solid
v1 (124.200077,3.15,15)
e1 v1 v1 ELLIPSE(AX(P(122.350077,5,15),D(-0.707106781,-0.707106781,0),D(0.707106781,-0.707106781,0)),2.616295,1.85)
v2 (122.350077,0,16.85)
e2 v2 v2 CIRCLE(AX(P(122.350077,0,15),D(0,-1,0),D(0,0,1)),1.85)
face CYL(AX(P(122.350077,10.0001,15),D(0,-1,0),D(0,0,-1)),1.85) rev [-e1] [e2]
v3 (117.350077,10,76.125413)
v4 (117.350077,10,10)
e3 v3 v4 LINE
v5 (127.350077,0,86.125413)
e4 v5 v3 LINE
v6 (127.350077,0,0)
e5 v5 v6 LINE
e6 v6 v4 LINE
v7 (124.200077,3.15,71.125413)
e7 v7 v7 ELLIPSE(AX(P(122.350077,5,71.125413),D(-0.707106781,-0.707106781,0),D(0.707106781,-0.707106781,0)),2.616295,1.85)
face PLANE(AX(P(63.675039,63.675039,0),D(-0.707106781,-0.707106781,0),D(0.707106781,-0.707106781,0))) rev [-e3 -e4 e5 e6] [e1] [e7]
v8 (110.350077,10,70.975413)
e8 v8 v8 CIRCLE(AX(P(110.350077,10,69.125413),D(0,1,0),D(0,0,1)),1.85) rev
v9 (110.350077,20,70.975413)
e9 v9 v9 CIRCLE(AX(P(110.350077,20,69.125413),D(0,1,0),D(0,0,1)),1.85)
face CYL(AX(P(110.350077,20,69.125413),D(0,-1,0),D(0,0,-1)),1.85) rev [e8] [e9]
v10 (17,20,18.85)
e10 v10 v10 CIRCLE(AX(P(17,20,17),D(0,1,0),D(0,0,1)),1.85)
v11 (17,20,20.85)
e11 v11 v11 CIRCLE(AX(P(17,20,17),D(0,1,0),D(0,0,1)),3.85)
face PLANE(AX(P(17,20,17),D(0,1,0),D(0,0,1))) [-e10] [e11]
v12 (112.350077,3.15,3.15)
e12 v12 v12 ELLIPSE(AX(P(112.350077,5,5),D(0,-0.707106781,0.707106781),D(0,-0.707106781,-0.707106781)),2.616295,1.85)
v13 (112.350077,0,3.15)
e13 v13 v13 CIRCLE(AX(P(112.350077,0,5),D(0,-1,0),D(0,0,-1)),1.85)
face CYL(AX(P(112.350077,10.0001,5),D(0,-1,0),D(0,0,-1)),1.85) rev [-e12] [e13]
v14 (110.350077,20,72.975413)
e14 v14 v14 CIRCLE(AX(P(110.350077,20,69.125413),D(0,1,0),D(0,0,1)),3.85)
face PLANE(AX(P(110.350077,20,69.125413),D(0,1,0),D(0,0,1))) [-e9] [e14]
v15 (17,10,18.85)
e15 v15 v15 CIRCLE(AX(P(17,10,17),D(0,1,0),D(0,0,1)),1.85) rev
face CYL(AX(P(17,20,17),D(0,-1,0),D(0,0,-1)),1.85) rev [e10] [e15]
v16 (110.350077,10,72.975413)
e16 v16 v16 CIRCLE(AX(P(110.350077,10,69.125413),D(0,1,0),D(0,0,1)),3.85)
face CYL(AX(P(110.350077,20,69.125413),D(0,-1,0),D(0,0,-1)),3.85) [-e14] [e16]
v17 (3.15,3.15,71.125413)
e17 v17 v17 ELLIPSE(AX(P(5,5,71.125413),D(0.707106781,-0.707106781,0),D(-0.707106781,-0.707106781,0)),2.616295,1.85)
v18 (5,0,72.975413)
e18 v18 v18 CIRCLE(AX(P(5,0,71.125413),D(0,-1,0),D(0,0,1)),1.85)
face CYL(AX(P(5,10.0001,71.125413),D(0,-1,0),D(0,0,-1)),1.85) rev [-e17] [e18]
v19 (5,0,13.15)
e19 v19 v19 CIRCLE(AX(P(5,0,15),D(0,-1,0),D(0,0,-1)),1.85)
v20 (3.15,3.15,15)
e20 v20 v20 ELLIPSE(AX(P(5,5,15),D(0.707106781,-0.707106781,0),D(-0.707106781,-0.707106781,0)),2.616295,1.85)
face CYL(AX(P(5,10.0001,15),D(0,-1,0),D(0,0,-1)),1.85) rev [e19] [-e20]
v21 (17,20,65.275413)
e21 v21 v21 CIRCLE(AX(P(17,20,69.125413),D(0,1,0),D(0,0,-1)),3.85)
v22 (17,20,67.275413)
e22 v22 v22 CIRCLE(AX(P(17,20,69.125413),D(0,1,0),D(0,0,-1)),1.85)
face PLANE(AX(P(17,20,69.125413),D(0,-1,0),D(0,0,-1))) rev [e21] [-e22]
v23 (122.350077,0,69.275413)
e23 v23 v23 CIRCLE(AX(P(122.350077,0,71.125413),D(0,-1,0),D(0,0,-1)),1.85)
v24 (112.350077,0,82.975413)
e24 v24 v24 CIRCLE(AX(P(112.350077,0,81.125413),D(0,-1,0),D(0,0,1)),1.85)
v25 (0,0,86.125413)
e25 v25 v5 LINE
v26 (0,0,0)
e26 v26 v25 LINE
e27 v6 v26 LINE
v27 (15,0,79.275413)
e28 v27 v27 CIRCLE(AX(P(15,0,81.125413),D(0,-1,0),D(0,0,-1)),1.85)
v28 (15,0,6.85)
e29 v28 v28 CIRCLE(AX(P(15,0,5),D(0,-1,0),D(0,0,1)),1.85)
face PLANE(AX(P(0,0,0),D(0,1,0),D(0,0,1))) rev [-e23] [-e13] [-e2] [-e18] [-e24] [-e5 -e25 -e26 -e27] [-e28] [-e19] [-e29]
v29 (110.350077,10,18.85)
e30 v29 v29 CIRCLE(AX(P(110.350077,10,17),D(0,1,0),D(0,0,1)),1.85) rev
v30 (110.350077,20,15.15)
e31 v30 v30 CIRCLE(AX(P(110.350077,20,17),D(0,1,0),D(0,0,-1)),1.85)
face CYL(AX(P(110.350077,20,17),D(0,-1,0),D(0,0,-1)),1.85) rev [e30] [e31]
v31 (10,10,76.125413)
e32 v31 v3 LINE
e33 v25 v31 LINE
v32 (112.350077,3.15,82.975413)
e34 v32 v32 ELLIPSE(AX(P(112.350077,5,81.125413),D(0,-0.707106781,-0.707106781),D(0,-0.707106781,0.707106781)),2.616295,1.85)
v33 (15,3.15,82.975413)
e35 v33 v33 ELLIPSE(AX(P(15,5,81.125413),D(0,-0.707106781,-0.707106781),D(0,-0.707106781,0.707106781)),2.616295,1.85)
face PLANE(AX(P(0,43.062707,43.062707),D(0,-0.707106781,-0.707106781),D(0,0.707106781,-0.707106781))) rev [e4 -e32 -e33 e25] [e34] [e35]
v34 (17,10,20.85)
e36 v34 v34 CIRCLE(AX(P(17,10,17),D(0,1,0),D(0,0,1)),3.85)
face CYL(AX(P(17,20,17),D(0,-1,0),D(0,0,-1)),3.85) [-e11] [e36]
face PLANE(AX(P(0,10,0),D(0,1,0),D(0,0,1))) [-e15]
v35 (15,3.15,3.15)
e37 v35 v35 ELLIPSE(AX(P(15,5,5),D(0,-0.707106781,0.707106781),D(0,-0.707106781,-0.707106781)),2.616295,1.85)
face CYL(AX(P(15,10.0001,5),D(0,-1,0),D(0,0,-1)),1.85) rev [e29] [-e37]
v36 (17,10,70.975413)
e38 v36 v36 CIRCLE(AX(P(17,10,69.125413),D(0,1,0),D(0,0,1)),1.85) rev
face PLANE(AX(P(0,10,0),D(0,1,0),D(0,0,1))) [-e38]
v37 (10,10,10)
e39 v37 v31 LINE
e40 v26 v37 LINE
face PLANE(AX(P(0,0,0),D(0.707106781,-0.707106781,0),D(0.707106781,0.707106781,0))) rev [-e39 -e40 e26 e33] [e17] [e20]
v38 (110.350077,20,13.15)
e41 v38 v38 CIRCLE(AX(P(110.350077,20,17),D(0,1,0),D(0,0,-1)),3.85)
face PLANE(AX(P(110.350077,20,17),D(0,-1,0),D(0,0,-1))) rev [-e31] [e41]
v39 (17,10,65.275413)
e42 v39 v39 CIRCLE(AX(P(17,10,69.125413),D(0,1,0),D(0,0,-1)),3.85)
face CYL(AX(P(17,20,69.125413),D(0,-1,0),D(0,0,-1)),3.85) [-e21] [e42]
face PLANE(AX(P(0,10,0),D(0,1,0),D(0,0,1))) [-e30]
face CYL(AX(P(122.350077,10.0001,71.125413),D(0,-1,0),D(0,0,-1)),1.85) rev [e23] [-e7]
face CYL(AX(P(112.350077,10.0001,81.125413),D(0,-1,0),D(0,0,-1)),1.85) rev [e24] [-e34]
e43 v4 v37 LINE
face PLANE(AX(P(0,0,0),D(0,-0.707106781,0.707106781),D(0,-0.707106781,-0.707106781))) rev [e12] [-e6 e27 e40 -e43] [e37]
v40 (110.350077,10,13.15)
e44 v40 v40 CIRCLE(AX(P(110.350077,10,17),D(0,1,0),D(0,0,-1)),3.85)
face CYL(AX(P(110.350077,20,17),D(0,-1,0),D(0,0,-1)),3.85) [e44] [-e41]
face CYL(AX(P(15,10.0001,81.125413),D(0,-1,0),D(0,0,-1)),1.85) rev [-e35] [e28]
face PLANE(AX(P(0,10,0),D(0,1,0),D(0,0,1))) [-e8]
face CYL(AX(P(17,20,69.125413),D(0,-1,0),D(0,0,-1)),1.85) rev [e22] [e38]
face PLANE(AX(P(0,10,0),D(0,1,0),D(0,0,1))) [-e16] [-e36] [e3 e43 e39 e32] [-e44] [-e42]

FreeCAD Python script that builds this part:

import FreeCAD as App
import Part
import Sketcher
from FreeCAD import Vector

doc = App.newDocument("Part")
params = doc.addObject("Spreadsheet::Sheet", "Params")
for row, (alias, value) in enumerate([
    ("sketch3_diameter", "3.7 mm"),
    ("sketch4_diameter", "7.7 mm"),
    ("sketch4_diameter2", "3.7 mm"),
    ("pad1_length", "10 mm"),
], start=1):
    params.set(f"A{row}", alias)
    params.set(f"B{row}", "=" + value)
    params.setAlias(f"B{row}", alias)

body = doc.addObject("PartDesign::Body", "Body")

# Sketch on XZ plane
sketch1 = doc.addObject("Sketcher::SketchObject", "Sketch")
body.addObject(sketch1)
sketch1.AttachmentSupport = (doc.XZ_Plane, [""])
sketch1.MapMode = "FlatFace"
sketch1.addGeometry(Part.LineSegment(Vector(127, 0, 0), Vector(0, 0, 0)), False)
sketch1.addGeometry(Part.LineSegment(Vector(0, 0, 0), Vector(0, 86, 0)), False)
sketch1.addGeometry(Part.LineSegment(Vector(0, 86, 0), Vector(127, 86, 0)), False)
sketch1.addGeometry(Part.LineSegment(Vector(127, 86, 0), Vector(127, 0, 0)), False)
sketch1.addConstraint(Sketcher.Constraint("Coincident", 0, 2, 1, 1))
sketch1.addConstraint(Sketcher.Constraint("Coincident", 1, 2, 2, 1))
sketch1.addConstraint(Sketcher.Constraint("Coincident", 2, 2, 3, 1))
sketch1.addConstraint(Sketcher.Constraint("Coincident", 3, 2, 0, 1))
sketch1.addConstraint(Sketcher.Constraint("Horizontal", 0))
sketch1.addConstraint(Sketcher.Constraint("Vertical", 1))
sketch1.addConstraint(Sketcher.Constraint("Horizontal", 2))
sketch1.addConstraint(Sketcher.Constraint("Vertical", 3))
sketch1.addConstraint(Sketcher.Constraint("Coincident", 0, 2, -1, 1))
sketch1.addConstraint(Sketcher.Constraint("DistanceX", 0, 2, 0, 1, 127.350077))
sketch1.addConstraint(Sketcher.Constraint("DistanceY", 1, 1, 1, 2, 86.125413))

# Sketch on XZ plane
sketch2 = doc.addObject("Sketcher::SketchObject", "Sketch001")
body.addObject(sketch2)
sketch2.AttachmentSupport = (doc.XZ_Plane, [""])
sketch2.MapMode = "FlatFace"
sketch2.AttachmentOffset = App.Placement(Vector(0, 0, -10), App.Rotation())
sketch2.addGeometry(Part.LineSegment(Vector(10, 10, 0), Vector(10, 76, 0)), False)
sketch2.addGeometry(Part.LineSegment(Vector(10, 76, 0), Vector(117, 76, 0)), False)
sketch2.addGeometry(Part.LineSegment(Vector(117, 76, 0), Vector(117, 10, 0)), False)
sketch2.addGeometry(Part.LineSegment(Vector(117, 10, 0), Vector(10, 10, 0)), False)
sketch2.addConstraint(Sketcher.Constraint("Coincident", 0, 2, 1, 1))
sketch2.addConstraint(Sketcher.Constraint("Coincident", 1, 2, 2, 1))
sketch2.addConstraint(Sketcher.Constraint("Coincident", 2, 2, 3, 1))
sketch2.addConstraint(Sketcher.Constraint("Coincident", 3, 2, 0, 1))
sketch2.addConstraint(Sketcher.Constraint("Vertical", 0))
sketch2.addConstraint(Sketcher.Constraint("Horizontal", 1))
sketch2.addConstraint(Sketcher.Constraint("Vertical", 2))
sketch2.addConstraint(Sketcher.Constraint("Horizontal", 3))
sketch2.addConstraint(Sketcher.Constraint("DistanceX", -1, 1, 0, 2, 10.0))
sketch2.addConstraint(Sketcher.Constraint("DistanceY", -1, 1, 2, 2, 10.0))
sketch2.addConstraint(Sketcher.Constraint("DistanceX", 1, 1, 1, 2, 107.350077))
sketch2.addConstraint(Sketcher.Constraint("DistanceY", 0, 1, 0, 2, 66.125413))

additiveloft = doc.addObject("PartDesign::AdditiveLoft", "AdditiveLoft")
body.addObject(additiveloft)
additiveloft.Profile = sketch1
additiveloft.Sections = [sketch2]

# Sketch on XZ plane
sketch3 = doc.addObject("Sketcher::SketchObject", "Sketch002")
body.addObject(sketch3)
sketch3.AttachmentSupport = (doc.XZ_Plane, [""])
sketch3.MapMode = "FlatFace"
sketch3.addGeometry(Part.Circle(Vector(5, 15, 0), Vector(0, 0, 1), 1.9), False)
sketch3.addGeometry(Part.Circle(Vector(5, 71.1, 0), Vector(0, 0, 1), 1.9), False)
sketch3.addGeometry(Part.Circle(Vector(122.4, 71.1, 0), Vector(0, 0, 1), 1.9), False)
sketch3.addGeometry(Part.Circle(Vector(122.4, 15, 0), Vector(0, 0, 1), 1.9), False)
sketch3.addGeometry(Part.Circle(Vector(15, 5, 0), Vector(0, 0, 1), 1.9), False)
sketch3.addGeometry(Part.Circle(Vector(15, 81.1, 0), Vector(0, 0, 1), 1.9), False)
sketch3.addGeometry(Part.Circle(Vector(112.4, 81.1, 0), Vector(0, 0, 1), 1.9), False)
sketch3.addGeometry(Part.Circle(Vector(112.4, 5, 0), Vector(0, 0, 1), 1.9), False)
sketch3.addConstraint(Sketcher.Constraint("Equal", 0, 1))
sketch3.addConstraint(Sketcher.Constraint("Equal", 1, 2))
sketch3.addConstraint(Sketcher.Constraint("Equal", 2, 3))
sketch3.addConstraint(Sketcher.Constraint("Equal", 3, 4))
sketch3.addConstraint(Sketcher.Constraint("Equal", 4, 5))
sketch3.addConstraint(Sketcher.Constraint("Equal", 5, 6))
sketch3.addConstraint(Sketcher.Constraint("Equal", 6, 7))
sketch3.addConstraint(Sketcher.Constraint("Horizontal", 1, 3, 2, 3))
sketch3.addConstraint(Sketcher.Constraint("Horizontal", 0, 3, 3, 3))
sketch3.addConstraint(Sketcher.Constraint("Horizontal", 5, 3, 6, 3))
sketch3.addConstraint(Sketcher.Constraint("Horizontal", 4, 3, 7, 3))
sketch3.addConstraint(Sketcher.Constraint("Vertical", 0, 3, 1, 3))
sketch3.addConstraint(Sketcher.Constraint("Vertical", 2, 3, 3, 3))
sketch3.addConstraint(Sketcher.Constraint("Vertical", 4, 3, 5, 3))
sketch3.addConstraint(Sketcher.Constraint("Vertical", 6, 3, 7, 3))
sketch3.addConstraint(Sketcher.Constraint("Diameter", 0, 3.7))
sketch3.addConstraint(Sketcher.Constraint("DistanceX", -1, 1, 0, 3, 5.0))
sketch3.addConstraint(Sketcher.Constraint("DistanceY", -1, 1, 0, 3, 15.0))
sketch3.addConstraint(Sketcher.Constraint("DistanceX", -1, 1, 4, 3, 15.0))
sketch3.addConstraint(Sketcher.Constraint("DistanceY", -1, 1, 4, 3, 5.0))
sketch3.addConstraint(Sketcher.Constraint("DistanceY", 1, 3, 5, 3, 10.0))
sketch3.addConstraint(Sketcher.Constraint("DistanceX", 6, 3, 2, 3, 10.0))
sketch3.addConstraint(Sketcher.Constraint("DistanceY", -1, 1, 1, 3, 71.125413))
sketch3.addConstraint(Sketcher.Constraint("DistanceX", -1, 1, 2, 3, 122.350077))
sketch3.setExpression("Constraints[15]", "Params.sketch3_diameter")
pocket1 = doc.addObject("PartDesign::Pocket", "Pocket")
body.addObject(pocket1)
pocket1.Profile = sketch3
pocket1.Type = "ThroughAll"

# Sketch on XZ plane
sketch4 = doc.addObject("Sketcher::SketchObject", "Sketch003")
body.addObject(sketch4)
sketch4.AttachmentSupport = (doc.XZ_Plane, [""])
sketch4.MapMode = "FlatFace"
sketch4.AttachmentOffset = App.Placement(Vector(0, 0, -10), App.Rotation())
sketch4.addGeometry(Part.Circle(Vector(110.4, 69.1, 0), Vector(0, 0, 1), 3.9), False)
sketch4.addGeometry(Part.Circle(Vector(110.4, 69.1, 0), Vector(0, 0, 1), 1.9), False)
sketch4.addGeometry(Part.Circle(Vector(110.4, 17, 0), Vector(0, 0, 1), 3.9), False)
sketch4.addGeometry(Part.Circle(Vector(110.4, 17, 0), Vector(0, 0, 1), 1.9), False)
sketch4.addGeometry(Part.Circle(Vector(17, 17, 0), Vector(0, 0, 1), 3.9), False)
sketch4.addGeometry(Part.Circle(Vector(17, 17, 0), Vector(0, 0, 1), 1.9), False)
sketch4.addGeometry(Part.Circle(Vector(17, 69.1, 0), Vector(0, 0, 1), 3.9), False)
sketch4.addGeometry(Part.Circle(Vector(17, 69.1, 0), Vector(0, 0, 1), 1.9), False)
sketch4.addConstraint(Sketcher.Constraint("Coincident", 1, 3, 0, 3))
sketch4.addConstraint(Sketcher.Constraint("Coincident", 3, 3, 2, 3))
sketch4.addConstraint(Sketcher.Constraint("Coincident", 5, 3, 4, 3))
sketch4.addConstraint(Sketcher.Constraint("Coincident", 7, 3, 6, 3))
sketch4.addConstraint(Sketcher.Constraint("Equal", 0, 2))
sketch4.addConstraint(Sketcher.Constraint("Equal", 1, 3))
sketch4.addConstraint(Sketcher.Constraint("Equal", 2, 4))
sketch4.addConstraint(Sketcher.Constraint("Equal", 3, 5))
sketch4.addConstraint(Sketcher.Constraint("Equal", 4, 6))
sketch4.addConstraint(Sketcher.Constraint("Equal", 5, 7))
sketch4.addConstraint(Sketcher.Constraint("Horizontal", 3, 3, 4, 3))
sketch4.addConstraint(Sketcher.Constraint("Horizontal", 1, 3, 6, 3))
sketch4.addConstraint(Sketcher.Constraint("Vertical", 1, 3, 2, 3))
sketch4.addConstraint(Sketcher.Constraint("Vertical", 5, 3, 6, 3))
sketch4.addConstraint(Sketcher.Constraint("Diameter", 0, 7.7))
sketch4.addConstraint(Sketcher.Constraint("Diameter", 1, 3.7))
sketch4.addConstraint(Sketcher.Constraint("DistanceY", -1, 1, 2, 3, 17.0))
sketch4.addConstraint(Sketcher.Constraint("DistanceX", -1, 1, 4, 3, 17.0))
sketch4.addConstraint(Sketcher.Constraint("DistanceX", -1, 1, 0, 3, 110.350077))
sketch4.addConstraint(Sketcher.Constraint("DistanceY", -1, 1, 0, 3, 69.125413))
sketch4.setExpression("Constraints[14]", "Params.sketch4_diameter")
sketch4.setExpression("Constraints[15]", "Params.sketch4_diameter2")
pad1 = doc.addObject("PartDesign::Pad", "Pad")
body.addObject(pad1)
pad1.Profile = sketch4
pad1.setExpression("Length", "Params.pad1_length")
pad1.Reversed = True

doc.recompute()
